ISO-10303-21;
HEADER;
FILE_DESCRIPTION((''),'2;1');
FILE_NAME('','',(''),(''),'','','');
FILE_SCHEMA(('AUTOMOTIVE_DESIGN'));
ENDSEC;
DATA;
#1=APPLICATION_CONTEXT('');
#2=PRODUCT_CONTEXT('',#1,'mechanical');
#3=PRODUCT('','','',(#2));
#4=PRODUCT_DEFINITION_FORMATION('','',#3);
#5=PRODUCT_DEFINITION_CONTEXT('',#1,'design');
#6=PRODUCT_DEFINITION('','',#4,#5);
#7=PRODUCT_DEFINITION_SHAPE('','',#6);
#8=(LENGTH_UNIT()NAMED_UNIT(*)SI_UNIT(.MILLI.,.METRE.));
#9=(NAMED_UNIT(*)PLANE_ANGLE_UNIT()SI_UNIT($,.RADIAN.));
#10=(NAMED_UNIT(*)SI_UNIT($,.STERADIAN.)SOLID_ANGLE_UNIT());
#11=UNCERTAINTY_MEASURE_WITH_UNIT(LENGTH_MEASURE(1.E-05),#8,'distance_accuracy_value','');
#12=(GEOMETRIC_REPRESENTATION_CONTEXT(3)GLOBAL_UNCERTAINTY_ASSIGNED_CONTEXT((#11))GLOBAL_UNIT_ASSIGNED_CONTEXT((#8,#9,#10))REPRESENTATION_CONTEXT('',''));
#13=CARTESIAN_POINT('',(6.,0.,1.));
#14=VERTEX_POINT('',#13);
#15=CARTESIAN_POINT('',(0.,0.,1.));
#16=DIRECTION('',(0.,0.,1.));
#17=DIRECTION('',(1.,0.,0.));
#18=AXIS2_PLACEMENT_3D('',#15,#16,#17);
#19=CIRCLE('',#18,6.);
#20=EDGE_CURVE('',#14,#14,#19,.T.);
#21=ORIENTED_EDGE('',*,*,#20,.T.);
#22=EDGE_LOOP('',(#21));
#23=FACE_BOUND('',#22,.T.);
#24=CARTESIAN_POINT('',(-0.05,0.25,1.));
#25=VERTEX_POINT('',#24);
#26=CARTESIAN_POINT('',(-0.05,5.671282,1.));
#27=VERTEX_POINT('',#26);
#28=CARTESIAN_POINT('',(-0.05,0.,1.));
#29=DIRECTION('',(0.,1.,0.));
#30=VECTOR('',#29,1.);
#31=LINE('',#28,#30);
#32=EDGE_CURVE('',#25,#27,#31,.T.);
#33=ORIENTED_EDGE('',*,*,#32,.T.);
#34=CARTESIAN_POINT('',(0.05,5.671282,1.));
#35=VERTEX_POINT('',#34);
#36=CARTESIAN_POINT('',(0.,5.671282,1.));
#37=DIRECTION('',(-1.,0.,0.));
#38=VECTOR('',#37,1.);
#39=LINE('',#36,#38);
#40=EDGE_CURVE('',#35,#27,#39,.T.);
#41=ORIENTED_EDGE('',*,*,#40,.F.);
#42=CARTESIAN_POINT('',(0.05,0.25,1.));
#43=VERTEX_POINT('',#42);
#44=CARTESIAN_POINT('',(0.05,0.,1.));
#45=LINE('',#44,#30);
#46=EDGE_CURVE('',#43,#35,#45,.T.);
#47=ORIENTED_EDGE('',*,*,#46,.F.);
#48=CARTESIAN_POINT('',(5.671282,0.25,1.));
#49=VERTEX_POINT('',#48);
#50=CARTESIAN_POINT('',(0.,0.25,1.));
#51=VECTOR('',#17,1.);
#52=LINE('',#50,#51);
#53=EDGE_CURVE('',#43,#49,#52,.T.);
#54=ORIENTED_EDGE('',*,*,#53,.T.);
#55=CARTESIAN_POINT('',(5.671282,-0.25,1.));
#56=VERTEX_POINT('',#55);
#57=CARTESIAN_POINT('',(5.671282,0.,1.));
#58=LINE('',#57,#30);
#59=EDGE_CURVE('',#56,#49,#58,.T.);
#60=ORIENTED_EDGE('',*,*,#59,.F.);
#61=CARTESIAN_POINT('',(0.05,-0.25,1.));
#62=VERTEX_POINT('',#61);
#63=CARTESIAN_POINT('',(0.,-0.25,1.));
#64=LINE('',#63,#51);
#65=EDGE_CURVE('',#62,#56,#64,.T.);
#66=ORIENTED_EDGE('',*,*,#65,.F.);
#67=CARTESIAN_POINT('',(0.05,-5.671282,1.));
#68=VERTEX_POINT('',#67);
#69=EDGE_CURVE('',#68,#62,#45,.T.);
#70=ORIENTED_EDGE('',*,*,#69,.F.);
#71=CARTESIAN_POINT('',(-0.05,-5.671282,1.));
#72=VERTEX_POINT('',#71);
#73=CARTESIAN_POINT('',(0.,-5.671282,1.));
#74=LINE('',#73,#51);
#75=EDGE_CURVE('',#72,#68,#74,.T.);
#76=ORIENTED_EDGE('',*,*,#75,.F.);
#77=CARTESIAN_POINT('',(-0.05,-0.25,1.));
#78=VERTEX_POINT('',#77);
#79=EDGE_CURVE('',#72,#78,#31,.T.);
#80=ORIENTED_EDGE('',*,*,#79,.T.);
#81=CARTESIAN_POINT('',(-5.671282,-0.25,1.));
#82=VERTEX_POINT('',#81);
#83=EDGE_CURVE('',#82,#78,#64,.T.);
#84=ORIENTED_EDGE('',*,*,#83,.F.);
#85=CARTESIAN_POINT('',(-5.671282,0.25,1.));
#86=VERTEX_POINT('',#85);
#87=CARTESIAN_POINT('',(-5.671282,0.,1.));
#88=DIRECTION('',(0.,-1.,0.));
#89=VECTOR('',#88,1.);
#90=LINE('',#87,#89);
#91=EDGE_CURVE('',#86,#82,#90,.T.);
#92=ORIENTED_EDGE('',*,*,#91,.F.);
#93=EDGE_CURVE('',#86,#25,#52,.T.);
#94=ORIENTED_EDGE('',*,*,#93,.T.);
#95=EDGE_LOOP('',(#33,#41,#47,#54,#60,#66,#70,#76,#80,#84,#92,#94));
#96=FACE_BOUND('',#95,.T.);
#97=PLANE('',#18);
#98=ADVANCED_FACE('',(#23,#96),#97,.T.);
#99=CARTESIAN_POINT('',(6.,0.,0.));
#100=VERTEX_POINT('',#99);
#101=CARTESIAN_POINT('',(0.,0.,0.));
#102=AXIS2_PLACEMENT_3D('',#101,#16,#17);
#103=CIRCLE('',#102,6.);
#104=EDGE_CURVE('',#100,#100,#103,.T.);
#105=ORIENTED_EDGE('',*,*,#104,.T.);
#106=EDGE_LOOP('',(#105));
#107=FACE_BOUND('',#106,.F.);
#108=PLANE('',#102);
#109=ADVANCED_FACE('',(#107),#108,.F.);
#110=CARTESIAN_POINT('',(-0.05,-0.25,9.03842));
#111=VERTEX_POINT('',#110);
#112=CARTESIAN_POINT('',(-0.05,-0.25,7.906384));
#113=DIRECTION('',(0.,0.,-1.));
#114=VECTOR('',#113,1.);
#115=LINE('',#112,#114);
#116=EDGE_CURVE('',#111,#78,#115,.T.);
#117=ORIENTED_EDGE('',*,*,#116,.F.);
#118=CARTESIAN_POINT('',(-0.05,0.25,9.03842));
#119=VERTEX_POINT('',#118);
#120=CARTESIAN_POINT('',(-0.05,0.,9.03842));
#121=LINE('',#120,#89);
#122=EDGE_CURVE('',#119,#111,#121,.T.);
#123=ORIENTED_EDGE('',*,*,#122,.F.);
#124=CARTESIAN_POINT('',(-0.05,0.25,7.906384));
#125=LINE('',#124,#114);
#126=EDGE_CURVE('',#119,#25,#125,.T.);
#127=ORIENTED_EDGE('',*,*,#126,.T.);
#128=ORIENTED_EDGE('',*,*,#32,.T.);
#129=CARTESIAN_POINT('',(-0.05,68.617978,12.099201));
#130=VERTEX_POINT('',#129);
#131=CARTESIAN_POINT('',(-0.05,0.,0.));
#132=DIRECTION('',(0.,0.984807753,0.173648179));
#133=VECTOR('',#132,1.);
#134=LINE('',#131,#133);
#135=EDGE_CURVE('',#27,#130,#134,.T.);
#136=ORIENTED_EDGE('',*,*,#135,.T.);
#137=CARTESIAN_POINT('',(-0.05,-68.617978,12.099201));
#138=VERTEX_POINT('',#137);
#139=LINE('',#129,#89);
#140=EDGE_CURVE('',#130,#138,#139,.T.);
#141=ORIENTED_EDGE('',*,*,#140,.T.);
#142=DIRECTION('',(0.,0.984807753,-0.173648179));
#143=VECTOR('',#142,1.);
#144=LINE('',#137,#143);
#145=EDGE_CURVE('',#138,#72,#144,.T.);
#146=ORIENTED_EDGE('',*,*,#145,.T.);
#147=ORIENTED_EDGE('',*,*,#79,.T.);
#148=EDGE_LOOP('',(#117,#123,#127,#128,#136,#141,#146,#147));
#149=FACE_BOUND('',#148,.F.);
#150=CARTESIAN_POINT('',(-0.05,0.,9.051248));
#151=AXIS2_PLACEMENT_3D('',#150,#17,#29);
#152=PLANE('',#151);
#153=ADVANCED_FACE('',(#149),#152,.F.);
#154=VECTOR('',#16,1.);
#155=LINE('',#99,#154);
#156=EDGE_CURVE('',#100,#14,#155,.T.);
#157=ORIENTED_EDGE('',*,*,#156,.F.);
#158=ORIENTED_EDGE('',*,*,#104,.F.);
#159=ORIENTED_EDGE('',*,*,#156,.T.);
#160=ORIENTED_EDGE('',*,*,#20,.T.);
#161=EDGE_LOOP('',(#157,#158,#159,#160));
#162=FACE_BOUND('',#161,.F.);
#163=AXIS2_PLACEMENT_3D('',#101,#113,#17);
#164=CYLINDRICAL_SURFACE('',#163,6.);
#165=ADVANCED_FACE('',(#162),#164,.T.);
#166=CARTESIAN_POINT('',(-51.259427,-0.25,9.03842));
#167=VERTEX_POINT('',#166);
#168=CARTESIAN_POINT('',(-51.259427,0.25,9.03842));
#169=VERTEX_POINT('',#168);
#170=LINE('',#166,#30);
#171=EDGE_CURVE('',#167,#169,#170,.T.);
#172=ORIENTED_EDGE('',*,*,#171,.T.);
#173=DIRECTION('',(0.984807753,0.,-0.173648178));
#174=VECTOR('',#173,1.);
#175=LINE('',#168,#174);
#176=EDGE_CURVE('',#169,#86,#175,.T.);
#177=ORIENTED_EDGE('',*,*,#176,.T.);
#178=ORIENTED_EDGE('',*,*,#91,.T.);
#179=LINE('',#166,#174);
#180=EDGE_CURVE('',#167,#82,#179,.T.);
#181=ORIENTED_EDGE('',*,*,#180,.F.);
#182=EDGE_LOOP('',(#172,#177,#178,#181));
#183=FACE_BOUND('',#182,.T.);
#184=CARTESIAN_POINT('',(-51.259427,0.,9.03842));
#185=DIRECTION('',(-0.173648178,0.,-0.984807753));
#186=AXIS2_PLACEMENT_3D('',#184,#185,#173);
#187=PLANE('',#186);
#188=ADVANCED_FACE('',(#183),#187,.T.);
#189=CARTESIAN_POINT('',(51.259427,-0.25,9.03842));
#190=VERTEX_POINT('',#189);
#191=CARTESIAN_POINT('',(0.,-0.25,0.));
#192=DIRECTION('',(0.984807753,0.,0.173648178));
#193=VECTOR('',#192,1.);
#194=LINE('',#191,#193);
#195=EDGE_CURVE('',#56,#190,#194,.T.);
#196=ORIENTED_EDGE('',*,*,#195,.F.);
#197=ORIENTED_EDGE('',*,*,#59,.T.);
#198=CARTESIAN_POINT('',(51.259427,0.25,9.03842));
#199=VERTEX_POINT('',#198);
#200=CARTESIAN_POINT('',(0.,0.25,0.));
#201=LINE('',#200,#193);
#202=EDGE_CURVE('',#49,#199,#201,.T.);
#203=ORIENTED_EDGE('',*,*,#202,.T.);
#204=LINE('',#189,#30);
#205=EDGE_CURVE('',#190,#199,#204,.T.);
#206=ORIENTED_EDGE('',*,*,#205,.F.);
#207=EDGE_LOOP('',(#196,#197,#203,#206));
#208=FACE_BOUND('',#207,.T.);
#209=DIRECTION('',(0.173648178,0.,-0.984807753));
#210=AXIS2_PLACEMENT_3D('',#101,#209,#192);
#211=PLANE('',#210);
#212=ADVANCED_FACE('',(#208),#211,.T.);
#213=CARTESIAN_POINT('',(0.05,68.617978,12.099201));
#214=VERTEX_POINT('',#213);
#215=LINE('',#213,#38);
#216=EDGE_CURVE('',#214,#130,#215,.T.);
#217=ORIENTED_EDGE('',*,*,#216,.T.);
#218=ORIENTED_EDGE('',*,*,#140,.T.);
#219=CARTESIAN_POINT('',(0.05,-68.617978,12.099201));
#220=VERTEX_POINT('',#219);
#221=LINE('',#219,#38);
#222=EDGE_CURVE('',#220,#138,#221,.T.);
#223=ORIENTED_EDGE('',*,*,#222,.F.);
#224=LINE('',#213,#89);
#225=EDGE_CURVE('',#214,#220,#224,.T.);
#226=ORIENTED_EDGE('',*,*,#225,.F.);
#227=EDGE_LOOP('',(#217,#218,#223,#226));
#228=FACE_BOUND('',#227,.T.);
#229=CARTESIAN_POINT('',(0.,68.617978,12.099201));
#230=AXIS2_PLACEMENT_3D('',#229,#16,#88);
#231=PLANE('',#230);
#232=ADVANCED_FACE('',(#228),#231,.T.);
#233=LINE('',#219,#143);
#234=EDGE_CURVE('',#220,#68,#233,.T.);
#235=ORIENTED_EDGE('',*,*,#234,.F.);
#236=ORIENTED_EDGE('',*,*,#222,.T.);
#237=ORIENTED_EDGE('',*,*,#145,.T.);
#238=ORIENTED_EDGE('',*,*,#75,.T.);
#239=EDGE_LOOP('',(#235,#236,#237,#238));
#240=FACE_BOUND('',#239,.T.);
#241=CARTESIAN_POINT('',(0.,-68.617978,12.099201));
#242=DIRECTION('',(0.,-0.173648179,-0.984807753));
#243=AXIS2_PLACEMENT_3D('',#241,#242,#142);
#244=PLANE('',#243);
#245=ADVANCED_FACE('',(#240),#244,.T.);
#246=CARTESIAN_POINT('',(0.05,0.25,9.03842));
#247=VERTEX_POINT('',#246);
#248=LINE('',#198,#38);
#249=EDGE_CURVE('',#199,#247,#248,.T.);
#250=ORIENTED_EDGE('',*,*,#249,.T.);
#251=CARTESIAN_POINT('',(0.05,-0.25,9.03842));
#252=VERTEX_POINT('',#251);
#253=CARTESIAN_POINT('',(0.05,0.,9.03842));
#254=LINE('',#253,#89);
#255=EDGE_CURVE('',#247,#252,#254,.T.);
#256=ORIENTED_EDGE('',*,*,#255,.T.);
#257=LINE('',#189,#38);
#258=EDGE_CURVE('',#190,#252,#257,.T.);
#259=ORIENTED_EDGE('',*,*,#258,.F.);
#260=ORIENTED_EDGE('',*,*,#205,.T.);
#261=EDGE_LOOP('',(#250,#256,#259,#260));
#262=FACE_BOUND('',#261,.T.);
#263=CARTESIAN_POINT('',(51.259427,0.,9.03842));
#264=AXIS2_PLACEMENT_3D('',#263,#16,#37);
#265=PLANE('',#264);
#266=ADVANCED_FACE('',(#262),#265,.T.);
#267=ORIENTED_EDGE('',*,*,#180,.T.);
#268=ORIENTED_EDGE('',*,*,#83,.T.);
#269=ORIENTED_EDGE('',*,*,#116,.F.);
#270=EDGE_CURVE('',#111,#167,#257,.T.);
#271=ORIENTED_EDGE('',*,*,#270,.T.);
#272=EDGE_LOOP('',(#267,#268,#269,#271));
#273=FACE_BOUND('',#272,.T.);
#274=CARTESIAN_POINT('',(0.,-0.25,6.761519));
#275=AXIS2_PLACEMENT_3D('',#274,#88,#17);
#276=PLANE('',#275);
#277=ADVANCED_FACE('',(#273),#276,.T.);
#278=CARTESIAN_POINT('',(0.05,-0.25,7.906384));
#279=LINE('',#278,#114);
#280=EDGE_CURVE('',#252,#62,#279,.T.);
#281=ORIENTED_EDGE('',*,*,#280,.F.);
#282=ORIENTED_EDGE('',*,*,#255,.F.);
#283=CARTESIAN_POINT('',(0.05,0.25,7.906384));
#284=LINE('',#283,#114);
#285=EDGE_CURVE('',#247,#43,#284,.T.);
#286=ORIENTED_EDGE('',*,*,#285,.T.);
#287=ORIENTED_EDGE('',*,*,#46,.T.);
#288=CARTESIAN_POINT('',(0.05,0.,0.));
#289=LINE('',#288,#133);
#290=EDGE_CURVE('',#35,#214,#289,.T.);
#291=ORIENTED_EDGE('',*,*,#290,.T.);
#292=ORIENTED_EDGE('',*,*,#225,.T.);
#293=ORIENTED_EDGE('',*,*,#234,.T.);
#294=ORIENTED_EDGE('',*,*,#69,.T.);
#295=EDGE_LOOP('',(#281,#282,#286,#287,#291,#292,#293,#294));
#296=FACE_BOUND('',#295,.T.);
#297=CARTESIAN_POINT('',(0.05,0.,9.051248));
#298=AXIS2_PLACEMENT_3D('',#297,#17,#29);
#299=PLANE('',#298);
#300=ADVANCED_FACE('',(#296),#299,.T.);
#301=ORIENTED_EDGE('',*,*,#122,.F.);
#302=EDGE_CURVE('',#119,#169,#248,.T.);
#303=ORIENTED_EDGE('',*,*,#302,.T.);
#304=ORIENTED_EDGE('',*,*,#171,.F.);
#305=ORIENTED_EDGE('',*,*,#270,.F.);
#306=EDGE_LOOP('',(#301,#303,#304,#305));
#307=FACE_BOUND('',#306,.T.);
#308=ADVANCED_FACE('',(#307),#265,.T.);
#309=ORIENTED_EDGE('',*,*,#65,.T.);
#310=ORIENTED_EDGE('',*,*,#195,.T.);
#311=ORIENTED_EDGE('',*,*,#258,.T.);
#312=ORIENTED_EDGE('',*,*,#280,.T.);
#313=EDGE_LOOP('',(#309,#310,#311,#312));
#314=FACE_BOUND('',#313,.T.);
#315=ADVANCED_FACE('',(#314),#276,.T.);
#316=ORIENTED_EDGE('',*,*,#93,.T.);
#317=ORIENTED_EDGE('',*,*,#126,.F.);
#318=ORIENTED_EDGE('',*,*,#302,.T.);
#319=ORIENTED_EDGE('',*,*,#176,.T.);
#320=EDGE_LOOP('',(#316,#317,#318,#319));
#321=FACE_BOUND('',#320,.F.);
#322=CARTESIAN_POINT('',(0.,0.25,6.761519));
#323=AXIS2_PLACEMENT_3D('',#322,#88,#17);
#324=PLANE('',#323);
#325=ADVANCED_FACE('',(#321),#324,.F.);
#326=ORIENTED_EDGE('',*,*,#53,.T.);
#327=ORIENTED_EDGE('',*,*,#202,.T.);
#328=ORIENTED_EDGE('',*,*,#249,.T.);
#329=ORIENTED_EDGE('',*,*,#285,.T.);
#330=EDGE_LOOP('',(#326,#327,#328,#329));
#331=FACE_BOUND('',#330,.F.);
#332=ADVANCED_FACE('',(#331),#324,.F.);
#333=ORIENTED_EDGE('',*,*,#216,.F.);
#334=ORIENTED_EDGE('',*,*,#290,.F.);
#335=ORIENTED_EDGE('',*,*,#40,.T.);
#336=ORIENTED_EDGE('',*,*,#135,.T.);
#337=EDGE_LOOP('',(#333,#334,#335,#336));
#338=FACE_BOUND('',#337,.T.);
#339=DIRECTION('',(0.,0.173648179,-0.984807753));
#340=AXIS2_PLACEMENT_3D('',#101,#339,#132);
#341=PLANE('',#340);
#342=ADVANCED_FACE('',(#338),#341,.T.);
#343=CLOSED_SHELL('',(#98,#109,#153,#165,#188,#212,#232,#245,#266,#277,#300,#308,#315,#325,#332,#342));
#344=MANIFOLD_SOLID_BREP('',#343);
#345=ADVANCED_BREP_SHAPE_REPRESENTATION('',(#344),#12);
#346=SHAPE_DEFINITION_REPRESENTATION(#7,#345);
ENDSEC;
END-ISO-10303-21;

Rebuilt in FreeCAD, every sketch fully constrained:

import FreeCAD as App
import Part
import Sketcher
Q = App.Units.Quantity

doc = App.newDocument("Part")
body = doc.addObject("PartDesign::Body", "Body")

# Sketch on XY plane
sketch1 = body.newObject("Sketcher::SketchObject", "Sketch")
sketch1.AttachmentSupport = (doc.getObject("XY_Plane"), [""])
sketch1.MapMode = "FlatFace"
sketch1.addGeometry(Part.Circle(App.Vector(0, 0, 0), App.Vector(0, 0, 1), 6), False)
sketch1.addConstraint([
    Sketcher.Constraint("Coincident", 0, 3, -1, 1),
    Sketcher.Constraint("Diameter", 0, Q("12 mm")),
])
pad1 = body.newObject("PartDesign::Pad", "Pad")
pad1.Profile = sketch1
pad1.Length = 1

# Sketch on YZ plane
sketch2 = body.newObject("Sketcher::SketchObject", "Sketch001")
sketch2.AttachmentSupport = (doc.getObject("YZ_Plane"), [""])
sketch2.MapMode = "FlatFace"
sketch2.addGeometry([
    Part.LineSegment(App.Vector(-69, 12, 0), App.Vector(0, 0, 0)),
    Part.LineSegment(App.Vector(0, 0, 0), App.Vector(69, 12, 0)),
    Part.LineSegment(App.Vector(69, 12, 0), App.Vector(-69, 12, 0)),
], False)
sketch2.addConstraint([
    Sketcher.Constraint("Coincident", 0, 2, 1, 1),
    Sketcher.Constraint("Coincident", 1, 2, 2, 1),
    Sketcher.Constraint("Coincident", 2, 2, 0, 1),
    Sketcher.Constraint("Horizontal", 2),
    Sketcher.Constraint("Coincident", 0, 2, -1, 1),
    Sketcher.Constraint("Equal", 0, 1),
    Sketcher.Constraint("Angle", 0, Q("-10 deg")),
    Sketcher.Constraint("DistanceY", -1, 1, 1, 2, Q("12.099201 mm")),
])
pad2 = body.newObject("PartDesign::Pad", "Pad001")
pad2.Profile = sketch2
pad2.Length = 0.1
pad2.Midplane = True

# Sketch on XZ plane
sketch3 = body.newObject("Sketcher::SketchObject", "Sketch002")
sketch3.AttachmentSupport = (doc.getObject("XZ_Plane"), [""])
sketch3.MapMode = "FlatFace"
sketch3.addGeometry([
    Part.LineSegment(App.Vector(-51, 9, 0), App.Vector(0, 0, 0)),
    Part.LineSegment(App.Vector(0, 0, 0), App.Vector(51, 9, 0)),
    Part.LineSegment(App.Vector(51, 9, 0), App.Vector(-51, 9, 0)),
], False)
sketch3.addConstraint([
    Sketcher.Constraint("Coincident", 0, 2, 1, 1),
    Sketcher.Constraint("Coincident", 1, 2, 2, 1),
    Sketcher.Constraint("Coincident", 2, 2, 0, 1),
    Sketcher.Constraint("Horizontal", 2),
    Sketcher.Constraint("Coincident", 0, 2, -1, 1),
    Sketcher.Constraint("Equal", 0, 1),
    Sketcher.Constraint("Angle", 0, Q("-10 deg")),
    Sketcher.Constraint("DistanceX", 2, 2, 2, 1, Q("102.518854 mm")),
])
pad3 = body.newObject("PartDesign::Pad", "Pad002")
pad3.Profile = sketch3
pad3.Length = 0.5
pad3.Midplane = True

doc.recompute()
